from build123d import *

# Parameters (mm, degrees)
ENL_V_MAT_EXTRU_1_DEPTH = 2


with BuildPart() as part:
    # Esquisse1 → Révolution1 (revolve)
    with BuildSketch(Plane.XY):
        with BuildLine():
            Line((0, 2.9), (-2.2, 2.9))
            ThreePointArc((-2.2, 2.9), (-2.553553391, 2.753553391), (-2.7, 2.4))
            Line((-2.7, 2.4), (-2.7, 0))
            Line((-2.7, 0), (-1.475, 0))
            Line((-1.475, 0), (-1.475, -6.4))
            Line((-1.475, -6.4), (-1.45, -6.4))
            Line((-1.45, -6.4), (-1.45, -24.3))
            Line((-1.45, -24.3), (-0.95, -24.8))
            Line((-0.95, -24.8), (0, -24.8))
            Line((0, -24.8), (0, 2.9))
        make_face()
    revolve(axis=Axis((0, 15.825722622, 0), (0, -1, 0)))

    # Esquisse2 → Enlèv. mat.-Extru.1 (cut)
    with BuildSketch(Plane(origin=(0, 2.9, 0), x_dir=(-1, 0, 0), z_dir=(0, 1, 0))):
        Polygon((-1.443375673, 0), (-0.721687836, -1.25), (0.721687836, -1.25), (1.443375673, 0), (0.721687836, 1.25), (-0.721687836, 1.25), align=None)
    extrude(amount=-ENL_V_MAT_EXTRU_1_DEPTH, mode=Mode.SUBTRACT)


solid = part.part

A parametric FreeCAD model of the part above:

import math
import FreeCAD as App
import Part
import Sketcher

V = App.Vector
Q = App.Units.Quantity

doc = App.newDocument("Part")
body = doc.addObject("PartDesign::Body", "Body")

# Sketch on XY plane
sketch1 = body.newObject("Sketcher::SketchObject", "Sketch")
sketch1.AttachmentSupport = (doc.getObject("XY_Plane"), [""])
sketch1.MapMode = "FlatFace"
sketch1.addGeometry(Part.LineSegment(V(0, 2.9, 0), V(-2.2, 2.9, 0)), False)
sketch1.addGeometry(Part.ArcOfCircle(Part.Circle(V(-2.2, 2.4, 0), V(0, 0, 1), 0.5), math.radians(90), math.radians(180)), False)
sketch1.addGeometry(Part.LineSegment(V(-2.7, 2.4, 0), V(-2.7, 0, 0)), False)
sketch1.addGeometry(Part.LineSegment(V(-2.7, 0, 0), V(-1.475, 0, 0)), False)
sketch1.addGeometry(Part.LineSegment(V(-1.475, 0, 0), V(-1.475, -6.4, 0)), False)
sketch1.addGeometry(Part.LineSegment(V(-1.475, -6.4, 0), V(-1.45, -6.4, 0)), False)
sketch1.addGeometry(Part.LineSegment(V(-1.45, -6.4, 0), V(-1.45, -24.3, 0)), False)
sketch1.addGeometry(Part.LineSegment(V(-1.45, -24.3, 0), V(-0.95, -24.8, 0)), False)
sketch1.addGeometry(Part.LineSegment(V(-0.95, -24.8, 0), V(0, -24.8, 0)), False)
sketch1.addGeometry(Part.LineSegment(V(0, -24.8, 0), V(0, 2.9, 0)), False)
sketch1.addConstraint(Sketcher.Constraint("Tangent", 0, 2, 1, 1))
sketch1.addConstraint(Sketcher.Constraint("Tangent", 1, 2, 2, 1))
sketch1.addConstraint(Sketcher.Constraint("Coincident", 2, 2, 3, 1))
sketch1.addConstraint(Sketcher.Constraint("Coincident", 3, 2, 4, 1))
sketch1.addConstraint(Sketcher.Constraint("Coincident", 4, 2, 5, 1))
sketch1.addConstraint(Sketcher.Constraint("Coincident", 5, 2, 6, 1))
sketch1.addConstraint(Sketcher.Constraint("Coincident", 6, 2, 7, 1))
sketch1.addConstraint(Sketcher.Constraint("Coincident", 7, 2, 8, 1))
sketch1.addConstraint(Sketcher.Constraint("Coincident", 8, 2, 9, 1))
sketch1.addConstraint(Sketcher.Constraint("Coincident", 9, 2, 0, 1))
sketch1.addConstraint(Sketcher.Constraint("Horizontal", 0))
sketch1.addConstraint(Sketcher.Constraint("Vertical", 2))
sketch1.addConstraint(Sketcher.Constraint("Horizontal", 3))
sketch1.addConstraint(Sketcher.Constraint("Vertical", 4))
sketch1.addConstraint(Sketcher.Constraint("Horizontal", 5))
sketch1.addConstraint(Sketcher.Constraint("Vertical", 6))
sketch1.addConstraint(Sketcher.Constraint("Horizontal", 8))
sketch1.addConstraint(Sketcher.Constraint("Vertical", 9))
sketch1.addConstraint(Sketcher.Constraint("PointOnObject", 2, 2, -1))
sketch1.addConstraint(Sketcher.Constraint("PointOnObject", 8, 2, -2))
sketch1.addConstraint(Sketcher.Constraint("Radius", 1, 0.5))
sketch1.addConstraint(Sketcher.Constraint("Angle", 7, Q("-45 deg")))
sketch1.addConstraint(Sketcher.Constraint("DistanceX", 0, 2, 0, 1, 2.2))
sketch1.addConstraint(Sketcher.Constraint("DistanceY", 2, 2, 2, 1, 2.4))
sketch1.addConstraint(Sketcher.Constraint("DistanceY", 4, 2, 4, 1, 6.4))
sketch1.addConstraint(Sketcher.Constraint("DistanceY", 6, 2, 6, 1, 17.9))
sketch1.addConstraint(Sketcher.Constraint("DistanceY", 9, 1, 9, 2, 27.7))
sketch1.addConstraint(Sketcher.Constraint("DistanceX", 8, 1, 8, 2, 0.95))
sketch1.addConstraint(Sketcher.Constraint("DistanceX", 3, 1, 3, 2, 1.225))
revolution = body.newObject("PartDesign::Revolution", "Revolution")
revolution.Profile = sketch1
revolution.ReferenceAxis = (sketch1, ["V_Axis"])
revolution.Angle = 360

# Sketch on XZ plane
sketch2 = body.newObject("Sketcher::SketchObject", "Sketch001")
sketch2.AttachmentSupport = (doc.getObject("XZ_Plane"), [""])
sketch2.MapMode = "FlatFace"
sketch2.AttachmentOffset = App.Placement(V(0, 0, -2.9), App.Rotation())
sketch2.addGeometry(Part.LineSegment(V(1.4, 0, 0), V(0.7, -1.2, 0)), False)
sketch2.addGeometry(Part.LineSegment(V(0.7, -1.2, 0), V(-0.7, -1.2, 0)), False)
sketch2.addGeometry(Part.LineSegment(V(-0.7, -1.2, 0), V(-1.4, 0, 0)), False)
sketch2.addGeometry(Part.LineSegment(V(-1.4, 0, 0), V(-0.7, 1.2, 0)), False)
sketch2.addGeometry(Part.LineSegment(V(-0.7, 1.2, 0), V(0.7, 1.2, 0)), False)
sketch2.addGeometry(Part.LineSegment(V(0.7, 1.2, 0), V(1.4, 0, 0)), False)
sketch2.addConstraint(Sketcher.Constraint("Coincident", 0, 2, 1, 1))
sketch2.addConstraint(Sketcher.Constraint("Coincident", 1, 2, 2, 1))
sketch2.addConstraint(Sketcher.Constraint("Coincident", 2, 2, 3, 1))
sketch2.addConstraint(Sketcher.Constraint("Coincident", 3, 2, 4, 1))
sketch2.addConstraint(Sketcher.Constraint("Coincident", 4, 2, 5, 1))
sketch2.addConstraint(Sketcher.Constraint("Coincident", 5, 2, 0, 1))
sketch2.addConstraint(Sketcher.Constraint("Horizontal", 1))
sketch2.addConstraint(Sketcher.Constraint("Horizontal", 4))
sketch2.addConstraint(Sketcher.Constraint("Symmetric", 0, 2, 3, 2, -1, 1))
sketch2.addConstraint(Sketcher.Constraint("Symmetric", 2, 2, 5, 2, -1, 1))
sketch2.addConstraint(Sketcher.Constraint("PointOnObject", 2, 2, -1))
sketch2.addConstraint(Sketcher.Constraint("Parallel", 2, 5))
sketch2.addConstraint(Sketcher.Constraint("Vertical", 1, 2, 3, 2))
sketch2.addConstraint(Sketcher.Constraint("Angle", 0, Q("-120 deg")))
sketch2.addConstraint(Sketcher.Constraint("DistanceY", 1, 2, 3, 2, 2.5))
sketch2.addConstraint(Sketcher.Constraint("DistanceX", 1, 2, 1, 1, 1.443376))
pocket1 = body.newObject("PartDesign::Pocket", "Pocket")
pocket1.Profile = sketch2
pocket1.Length = 2
pocket1.Reversed = True

doc.recompute()
